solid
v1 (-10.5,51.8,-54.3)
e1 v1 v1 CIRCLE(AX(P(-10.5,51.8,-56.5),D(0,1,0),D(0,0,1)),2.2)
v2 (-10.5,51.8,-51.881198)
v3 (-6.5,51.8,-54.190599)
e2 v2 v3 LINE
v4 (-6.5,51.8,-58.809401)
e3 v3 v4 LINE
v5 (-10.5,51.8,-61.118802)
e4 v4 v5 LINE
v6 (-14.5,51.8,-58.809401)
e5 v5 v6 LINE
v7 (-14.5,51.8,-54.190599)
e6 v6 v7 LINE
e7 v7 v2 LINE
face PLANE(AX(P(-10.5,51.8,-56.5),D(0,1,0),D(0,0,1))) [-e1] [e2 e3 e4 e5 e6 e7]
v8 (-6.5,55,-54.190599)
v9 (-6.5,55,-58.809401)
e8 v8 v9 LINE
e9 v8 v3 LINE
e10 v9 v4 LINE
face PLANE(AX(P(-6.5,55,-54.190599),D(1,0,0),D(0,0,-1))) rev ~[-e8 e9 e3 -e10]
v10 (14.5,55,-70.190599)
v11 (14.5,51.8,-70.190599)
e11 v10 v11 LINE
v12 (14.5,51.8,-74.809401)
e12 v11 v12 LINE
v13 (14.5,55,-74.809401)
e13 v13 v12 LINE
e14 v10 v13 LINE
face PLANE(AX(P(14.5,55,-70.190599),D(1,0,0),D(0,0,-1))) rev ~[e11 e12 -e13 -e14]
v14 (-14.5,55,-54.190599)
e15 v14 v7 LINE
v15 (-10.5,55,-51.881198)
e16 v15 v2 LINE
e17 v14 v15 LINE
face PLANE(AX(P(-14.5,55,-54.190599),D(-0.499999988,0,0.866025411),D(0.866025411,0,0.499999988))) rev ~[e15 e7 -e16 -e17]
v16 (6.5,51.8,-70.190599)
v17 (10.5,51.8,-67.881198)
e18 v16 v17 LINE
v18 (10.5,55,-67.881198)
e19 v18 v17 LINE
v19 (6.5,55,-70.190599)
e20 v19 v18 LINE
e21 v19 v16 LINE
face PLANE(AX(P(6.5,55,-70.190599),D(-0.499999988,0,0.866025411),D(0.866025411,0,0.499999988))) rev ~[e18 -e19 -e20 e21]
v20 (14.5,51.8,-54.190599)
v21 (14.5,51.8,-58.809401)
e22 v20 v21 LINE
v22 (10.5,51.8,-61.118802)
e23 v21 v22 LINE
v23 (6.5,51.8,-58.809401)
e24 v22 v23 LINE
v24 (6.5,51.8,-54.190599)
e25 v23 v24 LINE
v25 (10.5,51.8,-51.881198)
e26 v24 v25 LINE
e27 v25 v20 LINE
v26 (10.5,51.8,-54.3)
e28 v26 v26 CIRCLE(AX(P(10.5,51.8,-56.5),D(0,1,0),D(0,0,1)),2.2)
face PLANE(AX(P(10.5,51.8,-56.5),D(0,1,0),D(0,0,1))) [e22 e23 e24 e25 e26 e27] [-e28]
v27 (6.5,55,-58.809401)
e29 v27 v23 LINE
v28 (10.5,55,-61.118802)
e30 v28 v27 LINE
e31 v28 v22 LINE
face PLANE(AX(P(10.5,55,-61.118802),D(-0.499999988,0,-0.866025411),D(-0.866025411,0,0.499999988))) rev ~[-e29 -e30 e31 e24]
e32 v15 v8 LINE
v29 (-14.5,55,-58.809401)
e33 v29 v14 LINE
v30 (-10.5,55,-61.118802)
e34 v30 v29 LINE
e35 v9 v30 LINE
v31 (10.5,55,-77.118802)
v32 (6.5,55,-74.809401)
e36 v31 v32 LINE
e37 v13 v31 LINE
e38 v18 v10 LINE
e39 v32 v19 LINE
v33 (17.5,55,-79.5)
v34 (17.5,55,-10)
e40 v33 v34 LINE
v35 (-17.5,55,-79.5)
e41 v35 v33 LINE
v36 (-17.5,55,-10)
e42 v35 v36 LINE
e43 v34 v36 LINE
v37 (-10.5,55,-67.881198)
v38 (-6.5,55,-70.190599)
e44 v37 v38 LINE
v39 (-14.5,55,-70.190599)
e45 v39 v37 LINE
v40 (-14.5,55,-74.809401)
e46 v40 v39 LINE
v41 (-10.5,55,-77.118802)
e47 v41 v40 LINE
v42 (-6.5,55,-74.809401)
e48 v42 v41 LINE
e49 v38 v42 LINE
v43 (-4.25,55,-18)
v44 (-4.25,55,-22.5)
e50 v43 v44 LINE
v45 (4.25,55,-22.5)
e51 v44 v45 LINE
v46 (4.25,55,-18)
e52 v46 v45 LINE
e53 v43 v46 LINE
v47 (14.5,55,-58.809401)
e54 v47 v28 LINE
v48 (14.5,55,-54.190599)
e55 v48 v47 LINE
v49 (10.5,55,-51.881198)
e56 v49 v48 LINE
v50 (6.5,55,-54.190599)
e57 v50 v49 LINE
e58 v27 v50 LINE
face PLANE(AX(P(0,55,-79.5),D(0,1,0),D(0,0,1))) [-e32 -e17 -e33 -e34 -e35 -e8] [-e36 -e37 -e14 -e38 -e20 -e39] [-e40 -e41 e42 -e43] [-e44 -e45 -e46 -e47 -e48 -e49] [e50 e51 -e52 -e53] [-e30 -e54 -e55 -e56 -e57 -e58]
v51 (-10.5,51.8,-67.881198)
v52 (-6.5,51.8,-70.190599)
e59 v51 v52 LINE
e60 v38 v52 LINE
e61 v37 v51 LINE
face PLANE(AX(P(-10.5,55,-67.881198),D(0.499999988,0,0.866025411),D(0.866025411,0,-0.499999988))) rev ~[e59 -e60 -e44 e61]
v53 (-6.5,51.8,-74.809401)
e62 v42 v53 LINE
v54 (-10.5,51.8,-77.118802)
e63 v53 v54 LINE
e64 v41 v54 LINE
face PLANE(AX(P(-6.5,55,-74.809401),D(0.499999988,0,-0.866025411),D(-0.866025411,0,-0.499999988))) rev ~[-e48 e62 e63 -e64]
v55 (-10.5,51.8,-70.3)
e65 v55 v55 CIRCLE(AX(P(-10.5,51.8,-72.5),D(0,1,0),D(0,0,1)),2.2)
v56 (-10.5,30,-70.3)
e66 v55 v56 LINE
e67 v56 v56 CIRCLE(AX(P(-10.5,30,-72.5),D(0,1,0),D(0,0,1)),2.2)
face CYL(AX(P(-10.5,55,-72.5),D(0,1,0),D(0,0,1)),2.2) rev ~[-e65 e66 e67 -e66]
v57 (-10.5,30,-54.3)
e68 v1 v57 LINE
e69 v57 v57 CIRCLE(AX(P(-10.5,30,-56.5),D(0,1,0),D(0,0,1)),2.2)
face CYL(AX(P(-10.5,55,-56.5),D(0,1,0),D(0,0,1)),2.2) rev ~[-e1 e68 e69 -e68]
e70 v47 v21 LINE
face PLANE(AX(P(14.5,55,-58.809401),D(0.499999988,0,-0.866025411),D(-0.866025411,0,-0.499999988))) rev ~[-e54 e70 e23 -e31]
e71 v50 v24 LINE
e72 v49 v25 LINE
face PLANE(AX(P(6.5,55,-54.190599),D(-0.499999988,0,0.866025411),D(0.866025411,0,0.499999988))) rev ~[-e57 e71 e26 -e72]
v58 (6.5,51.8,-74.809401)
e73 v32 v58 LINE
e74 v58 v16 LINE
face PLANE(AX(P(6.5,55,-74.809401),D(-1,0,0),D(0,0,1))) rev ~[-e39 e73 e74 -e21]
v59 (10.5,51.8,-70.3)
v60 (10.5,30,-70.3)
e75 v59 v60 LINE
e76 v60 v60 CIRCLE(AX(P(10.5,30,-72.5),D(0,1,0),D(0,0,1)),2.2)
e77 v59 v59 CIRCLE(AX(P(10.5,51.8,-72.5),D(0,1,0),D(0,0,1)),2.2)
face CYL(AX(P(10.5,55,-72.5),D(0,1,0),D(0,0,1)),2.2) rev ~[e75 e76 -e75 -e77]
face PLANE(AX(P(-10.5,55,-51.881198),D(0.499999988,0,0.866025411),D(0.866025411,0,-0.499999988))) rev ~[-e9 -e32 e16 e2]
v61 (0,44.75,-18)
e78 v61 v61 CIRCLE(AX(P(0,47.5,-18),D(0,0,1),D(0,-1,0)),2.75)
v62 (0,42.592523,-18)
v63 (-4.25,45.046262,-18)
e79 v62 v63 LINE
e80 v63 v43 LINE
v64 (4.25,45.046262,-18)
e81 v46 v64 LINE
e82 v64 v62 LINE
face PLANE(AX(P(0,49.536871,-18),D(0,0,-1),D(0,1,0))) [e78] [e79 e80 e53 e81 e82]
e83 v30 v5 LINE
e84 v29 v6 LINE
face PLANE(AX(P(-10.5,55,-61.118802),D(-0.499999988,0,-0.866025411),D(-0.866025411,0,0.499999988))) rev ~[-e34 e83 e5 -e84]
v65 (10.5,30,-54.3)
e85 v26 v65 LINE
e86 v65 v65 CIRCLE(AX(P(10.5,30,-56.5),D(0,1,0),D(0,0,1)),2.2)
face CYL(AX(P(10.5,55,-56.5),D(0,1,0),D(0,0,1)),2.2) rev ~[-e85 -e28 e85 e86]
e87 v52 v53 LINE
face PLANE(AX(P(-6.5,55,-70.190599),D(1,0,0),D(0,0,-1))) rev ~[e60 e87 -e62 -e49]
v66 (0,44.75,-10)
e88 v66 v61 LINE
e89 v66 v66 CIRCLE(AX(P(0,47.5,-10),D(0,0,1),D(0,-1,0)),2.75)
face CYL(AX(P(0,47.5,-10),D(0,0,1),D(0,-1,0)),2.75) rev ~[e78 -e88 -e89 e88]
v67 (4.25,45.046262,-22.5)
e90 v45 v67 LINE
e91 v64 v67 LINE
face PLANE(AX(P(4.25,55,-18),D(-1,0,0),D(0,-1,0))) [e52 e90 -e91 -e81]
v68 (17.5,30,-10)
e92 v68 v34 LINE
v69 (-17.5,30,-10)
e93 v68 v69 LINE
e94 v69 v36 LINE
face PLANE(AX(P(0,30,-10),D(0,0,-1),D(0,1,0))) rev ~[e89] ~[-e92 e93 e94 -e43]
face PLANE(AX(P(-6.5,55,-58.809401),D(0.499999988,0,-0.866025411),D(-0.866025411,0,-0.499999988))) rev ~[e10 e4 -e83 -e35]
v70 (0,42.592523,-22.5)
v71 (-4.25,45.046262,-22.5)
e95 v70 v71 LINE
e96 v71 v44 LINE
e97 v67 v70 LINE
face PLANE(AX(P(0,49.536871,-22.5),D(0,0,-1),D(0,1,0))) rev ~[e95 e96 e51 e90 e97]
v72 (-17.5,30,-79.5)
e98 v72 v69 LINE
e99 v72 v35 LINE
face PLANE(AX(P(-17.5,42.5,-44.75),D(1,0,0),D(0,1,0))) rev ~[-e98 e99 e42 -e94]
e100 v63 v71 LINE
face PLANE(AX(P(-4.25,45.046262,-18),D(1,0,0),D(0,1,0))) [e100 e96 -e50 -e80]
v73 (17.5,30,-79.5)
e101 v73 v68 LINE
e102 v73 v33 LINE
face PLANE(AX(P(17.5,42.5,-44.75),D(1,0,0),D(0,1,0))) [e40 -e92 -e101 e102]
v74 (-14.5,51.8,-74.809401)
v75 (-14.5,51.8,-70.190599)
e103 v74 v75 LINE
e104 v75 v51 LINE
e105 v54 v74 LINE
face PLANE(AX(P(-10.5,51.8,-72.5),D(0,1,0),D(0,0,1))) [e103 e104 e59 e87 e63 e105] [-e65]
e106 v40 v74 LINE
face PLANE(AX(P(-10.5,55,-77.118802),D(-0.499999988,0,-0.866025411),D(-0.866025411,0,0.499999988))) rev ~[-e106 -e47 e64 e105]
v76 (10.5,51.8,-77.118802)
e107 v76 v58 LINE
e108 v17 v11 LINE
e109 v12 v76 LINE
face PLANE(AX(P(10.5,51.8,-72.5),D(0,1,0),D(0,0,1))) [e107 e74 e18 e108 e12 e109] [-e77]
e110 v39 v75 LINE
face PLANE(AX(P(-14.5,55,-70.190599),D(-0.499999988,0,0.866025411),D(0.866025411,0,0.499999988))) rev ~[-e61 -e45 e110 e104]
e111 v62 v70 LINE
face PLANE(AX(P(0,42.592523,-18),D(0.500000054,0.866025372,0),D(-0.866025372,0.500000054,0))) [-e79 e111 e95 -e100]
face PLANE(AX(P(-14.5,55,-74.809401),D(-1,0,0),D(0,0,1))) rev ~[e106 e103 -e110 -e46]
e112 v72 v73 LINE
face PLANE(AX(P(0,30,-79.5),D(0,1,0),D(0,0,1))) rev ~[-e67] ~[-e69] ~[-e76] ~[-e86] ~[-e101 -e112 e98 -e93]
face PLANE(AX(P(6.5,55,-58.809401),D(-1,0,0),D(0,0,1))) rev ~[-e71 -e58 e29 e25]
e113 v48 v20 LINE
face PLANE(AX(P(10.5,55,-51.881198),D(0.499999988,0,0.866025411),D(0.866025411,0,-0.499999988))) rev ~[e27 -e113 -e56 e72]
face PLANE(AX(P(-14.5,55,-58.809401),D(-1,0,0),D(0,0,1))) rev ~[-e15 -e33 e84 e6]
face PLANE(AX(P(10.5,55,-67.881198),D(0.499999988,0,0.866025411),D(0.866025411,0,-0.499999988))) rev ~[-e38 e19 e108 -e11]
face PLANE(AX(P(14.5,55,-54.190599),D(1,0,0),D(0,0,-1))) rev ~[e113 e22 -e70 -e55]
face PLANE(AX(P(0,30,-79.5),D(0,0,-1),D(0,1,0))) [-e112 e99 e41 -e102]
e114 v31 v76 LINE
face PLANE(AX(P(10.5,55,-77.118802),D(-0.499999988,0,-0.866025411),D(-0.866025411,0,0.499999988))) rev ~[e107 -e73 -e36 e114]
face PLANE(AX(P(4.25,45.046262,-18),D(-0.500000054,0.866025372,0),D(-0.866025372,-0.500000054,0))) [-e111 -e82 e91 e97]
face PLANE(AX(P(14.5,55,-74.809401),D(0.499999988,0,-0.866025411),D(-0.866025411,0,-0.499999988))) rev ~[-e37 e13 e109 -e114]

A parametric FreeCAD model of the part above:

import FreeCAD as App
import Part
import Sketcher
from FreeCAD import Vector
Q = App.Units.Quantity

doc = App.newDocument("Part")
body = doc.addObject("PartDesign::Body", "Body")

# Sketch on YZ plane
sketch1 = body.newObject("Sketcher::SketchObject", "Sketch")
sketch1.AttachmentSupport = (doc.getObject("YZ_Plane"), [""])
sketch1.MapMode = "FlatFace"
sketch1.addGeometry(Part.LineSegment(Vector(30, -10, 0), Vector(30, -80, 0)), False)
sketch1.addGeometry(Part.LineSegment(Vector(30, -80, 0), Vector(55, -80, 0)), False)
sketch1.addGeometry(Part.LineSegment(Vector(55, -80, 0), Vector(55, -10, 0)), False)
sketch1.addGeometry(Part.LineSegment(Vector(55, -10, 0), Vector(30, -10, 0)), False)
sketch1.addConstraint(Sketcher.Constraint("Coincident", 0, 2, 1, 1))
sketch1.addConstraint(Sketcher.Constraint("Coincident", 1, 2, 2, 1))
sketch1.addConstraint(Sketcher.Constraint("Coincident", 2, 2, 3, 1))
sketch1.addConstraint(Sketcher.Constraint("Coincident", 3, 2, 0, 1))
sketch1.addConstraint(Sketcher.Constraint("Vertical", 0))
sketch1.addConstraint(Sketcher.Constraint("Horizontal", 1))
sketch1.addConstraint(Sketcher.Constraint("Vertical", 2))
sketch1.addConstraint(Sketcher.Constraint("Horizontal", 3))
sketch1.addConstraint(Sketcher.Constraint("DistanceX", 1, 1, 1, 2, 25.0))
sketch1.addConstraint(Sketcher.Constraint("DistanceY", 0, 2, 0, 1, 69.5))
sketch1.addConstraint(Sketcher.Constraint("DistanceX", -1, 1, 0, 2, 30.0))
sketch1.addConstraint(Sketcher.Constraint("DistanceY", 2, 2, -1, 1, 10.0))
pad1 = body.newObject("PartDesign::Pad", "Pad")
pad1.Profile = sketch1
pad1.Length = 35
pad1.Midplane = True

# Sketch on XY plane
sketch2 = body.newObject("Sketcher::SketchObject", "Sketch001")
sketch2.AttachmentSupport = (doc.getObject("XY_Plane"), [""])
sketch2.MapMode = "FlatFace"
sketch2.AttachmentOffset = App.Placement(Vector(0, 0, -18), App.Rotation())
sketch2.addGeometry(Part.LineSegment(Vector(4.2, 55, 0), Vector(-4.2, 55, 0)), False)
sketch2.addGeometry(Part.LineSegment(Vector(-4.2, 55, 0), Vector(-4.2, 45, 0)), False)
sketch2.addGeometry(Part.LineSegment(Vector(-4.2, 45, 0), Vector(0, 42.6, 0)), False)
sketch2.addGeometry(Part.LineSegment(Vector(0, 42.6, 0), Vector(4.2, 45, 0)), False)
sketch2.addGeometry(Part.LineSegment(Vector(4.2, 45, 0), Vector(4.2, 55, 0)), False)
sketch2.addConstraint(Sketcher.Constraint("Coincident", 0, 2, 1, 1))
sketch2.addConstraint(Sketcher.Constraint("Coincident", 1, 2, 2, 1))
sketch2.addConstraint(Sketcher.Constraint("Coincident", 2, 2, 3, 1))
sketch2.addConstraint(Sketcher.Constraint("Coincident", 3, 2, 4, 1))
sketch2.addConstraint(Sketcher.Constraint("Coincident", 4, 2, 0, 1))
sketch2.addConstraint(Sketcher.Constraint("Horizontal", 0))
sketch2.addConstraint(Sketcher.Constraint("Vertical", 1))
sketch2.addConstraint(Sketcher.Constraint("Vertical", 4))
sketch2.addConstraint(Sketcher.Constraint("Symmetric", 1, 2, 3, 2, -2))
sketch2.addConstraint(Sketcher.Constraint("PointOnObject", 2, 2, -2))
sketch2.addConstraint(Sketcher.Constraint("Angle", 2, Q("-30.000004 deg")))
sketch2.addConstraint(Sketcher.Constraint("DistanceX", 0, 2, 0, 1, 8.5))
sketch2.addConstraint(Sketcher.Constraint("DistanceY", -1, 1, 0, 2, 55.0))
sketch2.addConstraint(Sketcher.Constraint("DistanceY", 1, 2, 1, 1, 9.953738))
pocket1 = body.newObject("PartDesign::Pocket", "Pocket")
pocket1.Profile = sketch2
pocket1.Length = 4.5

# Sketch on XY plane
sketch3 = body.newObject("Sketcher::SketchObject", "Sketch002")
sketch3.AttachmentSupport = (doc.getObject("XY_Plane"), [""])
sketch3.MapMode = "FlatFace"
sketch3.AttachmentOffset = App.Placement(Vector(0, 0, -10), App.Rotation())
sketch3.addGeometry(Part.Circle(Vector(0, 47.5, 0), Vector(0, 0, 1), 2.8), False)
sketch3.addConstraint(Sketcher.Constraint("PointOnObject", 0, 3, -2))
sketch3.addConstraint(Sketcher.Constraint("Diameter", 0, 5.5))
sketch3.addConstraint(Sketcher.Constraint("DistanceY", -1, 1, 0, 3, 47.5))
pocket2 = body.newObject("PartDesign::Pocket", "Pocket001")
pocket2.Profile = sketch3
pocket2.Length = 12

# Sketch on XZ plane
sketch4 = body.newObject("Sketcher::SketchObject", "Sketch003")
sketch4.AttachmentSupport = (doc.getObject("XZ_Plane"), [""])
sketch4.MapMode = "FlatFace"
sketch4.AttachmentOffset = App.Placement(Vector(0, 0, -55), App.Rotation())
sketch4.addGeometry(Part.Circle(Vector(10.5, -72.5, 0), Vector(0, 0, 1), 2.2), False)
sketch4.addGeometry(Part.Circle(Vector(10.5, -56.5, 0), Vector(0, 0, 1), 2.2), False)
sketch4.addGeometry(Part.Circle(Vector(-10.5, -72.5, 0), Vector(0, 0, 1), 2.2), False)
sketch4.addGeometry(Part.Circle(Vector(-10.5, -56.5, 0), Vector(0, 0, 1), 2.2), False)
sketch4.addConstraint(Sketcher.Constraint("Equal", 0, 1))
sketch4.addConstraint(Sketcher.Constraint("Equal", 1, 2))
sketch4.addConstraint(Sketcher.Constraint("Equal", 2, 3))
sketch4.addConstraint(Sketcher.Constraint("Symmetric", 0, 3, 2, 3, -2))
sketch4.addConstraint(Sketcher.Constraint("Symmetric", 1, 3, 3, 3, -2))
sketch4.addConstraint(Sketcher.Constraint("Vertical", 0, 3, 1, 3))
sketch4.addConstraint(Sketcher.Constraint("Diameter", 0, 4.4))
sketch4.addConstraint(Sketcher.Constraint("DistanceY", 0, 3, 1, 3, 16.0))
sketch4.addConstraint(Sketcher.Constraint("DistanceX", 2, 3, 0, 3, 21.0))
sketch4.addConstraint(Sketcher.Constraint("DistanceY", 0, 3, -1, 1, 72.5))
pocket3 = body.newObject("PartDesign::Pocket", "Pocket002")
pocket3.Profile = sketch4
pocket3.Type = "ThroughAll"
pocket3.Reversed = True

# Sketch on XZ plane
sketch5 = body.newObject("Sketcher::SketchObject", "Sketch004")
sketch5.AttachmentSupport = (doc.getObject("XZ_Plane"), [""])
sketch5.MapMode = "FlatFace"
sketch5.AttachmentOffset = App.Placement(Vector(0, 0, -55), App.Rotation())
sketch5.addGeometry(Part.LineSegment(Vector(14.5, -70.2, 0), Vector(14.5, -74.8, 0)), False)
sketch5.addGeometry(Part.LineSegment(Vector(14.5, -74.8, 0), Vector(10.5, -77.1, 0)), False)
sketch5.addGeometry(Part.LineSegment(Vector(10.5, -77.1, 0), Vector(6.5, -74.8, 0)), False)
sketch5.addGeometry(Part.LineSegment(Vector(6.5, -74.8, 0), Vector(6.5, -70.2, 0)), False)
sketch5.addGeometry(Part.LineSegment(Vector(6.5, -70.2, 0), Vector(10.5, -67.9, 0)), False)
sketch5.addGeometry(Part.LineSegment(Vector(10.5, -67.9, 0), Vector(14.5, -70.2, 0)), False)
sketch5.addGeometry(Part.LineSegment(Vector(10.5, -51.9, 0), Vector(14.5, -54.2, 0)), False)
sketch5.addGeometry(Part.LineSegment(Vector(14.5, -54.2, 0), Vector(14.5, -58.8, 0)), False)
sketch5.addGeometry(Part.LineSegment(Vector(14.5, -58.8, 0), Vector(10.5, -61.1, 0)), False)
sketch5.addGeometry(Part.LineSegment(Vector(10.5, -61.1, 0), Vector(6.5, -58.8, 0)), False)
sketch5.addGeometry(Part.LineSegment(Vector(6.5, -58.8, 0), Vector(6.5, -54.2, 0)), False)
sketch5.addGeometry(Part.LineSegment(Vector(6.5, -54.2, 0), Vector(10.5, -51.9, 0)), False)
sketch5.addGeometry(Part.LineSegment(Vector(-10.5, -51.9, 0), Vector(-6.5, -54.2, 0)), False)
sketch5.addGeometry(Part.LineSegment(Vector(-6.5, -54.2, 0), Vector(-6.5, -58.8, 0)), False)
sketch5.addGeometry(Part.LineSegment(Vector(-6.5, -58.8, 0), Vector(-10.5, -61.1, 0)), False)
sketch5.addGeometry(Part.LineSegment(Vector(-10.5, -61.1, 0), Vector(-14.5, -58.8, 0)), False)
sketch5.addGeometry(Part.LineSegment(Vector(-14.5, -58.8, 0), Vector(-14.5, -54.2, 0)), False)
sketch5.addGeometry(Part.LineSegment(Vector(-14.5, -54.2, 0), Vector(-10.5, -51.9, 0)), False)
sketch5.addGeometry(Part.LineSegment(Vector(-6.5, -70.2, 0), Vector(-6.5, -74.8, 0)), False)
sketch5.addGeometry(Part.LineSegment(Vector(-6.5, -74.8, 0), Vector(-10.5, -77.1, 0)), False)
sketch5.addGeometry(Part.LineSegment(Vector(-10.5, -77.1, 0), Vector(-14.5, -74.8, 0)), False)
sketch5.addGeometry(Part.LineSegment(Vector(-14.5, -74.8, 0), Vector(-14.5, -70.2, 0)), False)
sketch5.addGeometry(Part.LineSegment(Vector(-14.5, -70.2, 0), Vector(-10.5, -67.9, 0)), False)
sketch5.addGeometry(Part.LineSegment(Vector(-10.5, -67.9, 0), Vector(-6.5, -70.2, 0)), False)
sketch5.addConstraint(Sketcher.Constraint("Coincident", 0, 2, 1, 1))
sketch5.addConstraint(Sketcher.Constraint("Coincident", 1, 2, 2, 1))
sketch5.addConstraint(Sketcher.Constraint("Coincident", 2, 2, 3, 1))
sketch5.addConstraint(Sketcher.Constraint("Coincident", 3, 2, 4, 1))
sketch5.addConstraint(Sketcher.Constraint("Coincident", 4, 2, 5, 1))
sketch5.addConstraint(Sketcher.Constraint("Coincident", 5, 2, 0, 1))
sketch5.addConstraint(Sketcher.Constraint("Coincident", 6, 2, 7, 1))
sketch5.addConstraint(Sketcher.Constraint("Coincident", 7, 2, 8, 1))
sketch5.addConstraint(Sketcher.Constraint("Coincident", 8, 2, 9, 1))
sketch5.addConstraint(Sketcher.Constraint("Coincident", 9, 2, 10, 1))
sketch5.addConstraint(Sketcher.Constraint("Coincident", 10, 2, 11, 1))
sketch5.addConstraint(Sketcher.Constraint("Coincident", 11, 2, 6, 1))
sketch5.addConstraint(Sketcher.Constraint("Coincident", 12, 2, 13, 1))
sketch5.addConstraint(Sketcher.Constraint("Coincident", 13, 2, 14, 1))
sketch5.addConstraint(Sketcher.Constraint("Coincident", 14, 2, 15, 1))
sketch5.addConstraint(Sketcher.Constraint("Coincident", 15, 2, 16, 1))
sketch5.addConstraint(Sketcher.Constraint("Coincident", 16, 2, 17, 1))
sketch5.addConstraint(Sketcher.Constraint("Coincident", 17, 2, 12, 1))
sketch5.addConstraint(Sketcher.Constraint("Coincident", 18, 2, 19, 1))
sketch5.addConstraint(Sketcher.Constraint("Coincident", 19, 2, 20, 1))
sketch5.addConstraint(Sketcher.Constraint("Coincident", 20, 2, 21, 1))
sketch5.addConstraint(Sketcher.Constraint("Coincident", 21, 2, 22, 1))
sketch5.addConstraint(Sketcher.Constraint("Coincident", 22, 2, 23, 1))
sketch5.addConstraint(Sketcher.Constraint("Coincident", 23, 2, 18, 1))
sketch5.addConstraint(Sketcher.Constraint("Vertical", 0))
sketch5.addConstraint(Sketcher.Constraint("Vertical", 3))
sketch5.addConstraint(Sketcher.Constraint("Vertical", 7))
sketch5.addConstraint(Sketcher.Constraint("Vertical", 10))
sketch5.addConstraint(Sketcher.Constraint("Vertical", 13))
sketch5.addConstraint(Sketcher.Constraint("Vertical", 16))
sketch5.addConstraint(Sketcher.Constraint("Vertical", 18))
sketch5.addConstraint(Sketcher.Constraint("Vertical", 21))
sketch5.addConstraint(Sketcher.Constraint("Symmetric", 10, 2, 12, 2, -2))
sketch5.addConstraint(Sketcher.Constraint("Symmetric", 8, 2, 14, 2, -2))
sketch5.addConstraint(Sketcher.Constraint("Symmetric", 7, 2, 15, 2, -2))
sketch5.addConstraint(Sketcher.Constraint("Symmetric", 11, 2, 17, 2, -2))
sketch5.addConstraint(Sketcher.Constraint("Symmetric", 2, 2, 18, 2, -2))
sketch5.addConstraint(Sketcher.Constraint("Symmetric", 1, 2, 19, 2, -2))
sketch5.addConstraint(Sketcher.Constraint("Symmetric", 0, 2, 20, 2, -2))
sketch5.addConstraint(Sketcher.Constraint("Symmetric", 4, 2, 22, 2, -2))
sketch5.addConstraint(Sketcher.Constraint("Parallel", 1, 4))
sketch5.addConstraint(Sketcher.Constraint("Parallel", 2, 5))
sketch5.addConstraint(Sketcher.Constraint("Parallel", 5, 6))
sketch5.addConstraint(Sketcher.Constraint("Parallel", 4, 8))
sketch5.addConstraint(Sketcher.Constraint("Parallel", 6, 9))
sketch5.addConstraint(Sketcher.Constraint("Parallel", 8, 11))
sketch5.addConstraint(Sketcher.Constraint("Parallel", 9, 12))
sketch5.addConstraint(Sketcher.Constraint("Parallel", 11, 14))
sketch5.addConstraint(Sketcher.Constraint("Parallel", 14, 17))
sketch5.addConstraint(Sketcher.Constraint("Parallel", 19, 22))
sketch5.addConstraint(Sketcher.Constraint("Parallel", 20, 23))
sketch5.addConstraint(Sketcher.Constraint("Horizontal", 0, 2, 2, 2))
sketch5.addConstraint(Sketcher.Constraint("Horizontal", 3, 2, 5, 2))
sketch5.addConstraint(Sketcher.Constraint("Horizontal", 7, 2, 9, 2))
sketch5.addConstraint(Sketcher.Constraint("Horizontal", 6, 2, 10, 2))
sketch5.addConstraint(Sketcher.Constraint("Vertical", 5, 2, 6, 2))
sketch5.addConstraint(Sketcher.Constraint("Vertical", 4, 2, 8, 2))
sketch5.addConstraint(Sketcher.Constraint("Equal", 3, 7))
sketch5.addConstraint(Sketcher.Constraint("Angle", 1, Q("-150.000001 deg")))
sketch5.addConstraint(Sketcher.Constraint("DistanceX", 1, 2, 0, 2, 4.0))
sketch5.addConstraint(Sketcher.Constraint("DistanceY", 5, 2, 6, 2, 16.0))
sketch5.addConstraint(Sketcher.Constraint("DistanceX", 12, 2, 10, 2, 13.0))
sketch5.addConstraint(Sketcher.Constraint("DistanceY", 0, 2, 0, 1, 4.618802))
sketch5.addConstraint(Sketcher.Constraint("DistanceY", 0, 2, -1, 1, 74.809401))
pocket4 = body.newObject("PartDesign::Pocket", "Pocket003")
pocket4.Profile = sketch5
pocket4.Length = 3.2
pocket4.Reversed = True

doc.recompute()
